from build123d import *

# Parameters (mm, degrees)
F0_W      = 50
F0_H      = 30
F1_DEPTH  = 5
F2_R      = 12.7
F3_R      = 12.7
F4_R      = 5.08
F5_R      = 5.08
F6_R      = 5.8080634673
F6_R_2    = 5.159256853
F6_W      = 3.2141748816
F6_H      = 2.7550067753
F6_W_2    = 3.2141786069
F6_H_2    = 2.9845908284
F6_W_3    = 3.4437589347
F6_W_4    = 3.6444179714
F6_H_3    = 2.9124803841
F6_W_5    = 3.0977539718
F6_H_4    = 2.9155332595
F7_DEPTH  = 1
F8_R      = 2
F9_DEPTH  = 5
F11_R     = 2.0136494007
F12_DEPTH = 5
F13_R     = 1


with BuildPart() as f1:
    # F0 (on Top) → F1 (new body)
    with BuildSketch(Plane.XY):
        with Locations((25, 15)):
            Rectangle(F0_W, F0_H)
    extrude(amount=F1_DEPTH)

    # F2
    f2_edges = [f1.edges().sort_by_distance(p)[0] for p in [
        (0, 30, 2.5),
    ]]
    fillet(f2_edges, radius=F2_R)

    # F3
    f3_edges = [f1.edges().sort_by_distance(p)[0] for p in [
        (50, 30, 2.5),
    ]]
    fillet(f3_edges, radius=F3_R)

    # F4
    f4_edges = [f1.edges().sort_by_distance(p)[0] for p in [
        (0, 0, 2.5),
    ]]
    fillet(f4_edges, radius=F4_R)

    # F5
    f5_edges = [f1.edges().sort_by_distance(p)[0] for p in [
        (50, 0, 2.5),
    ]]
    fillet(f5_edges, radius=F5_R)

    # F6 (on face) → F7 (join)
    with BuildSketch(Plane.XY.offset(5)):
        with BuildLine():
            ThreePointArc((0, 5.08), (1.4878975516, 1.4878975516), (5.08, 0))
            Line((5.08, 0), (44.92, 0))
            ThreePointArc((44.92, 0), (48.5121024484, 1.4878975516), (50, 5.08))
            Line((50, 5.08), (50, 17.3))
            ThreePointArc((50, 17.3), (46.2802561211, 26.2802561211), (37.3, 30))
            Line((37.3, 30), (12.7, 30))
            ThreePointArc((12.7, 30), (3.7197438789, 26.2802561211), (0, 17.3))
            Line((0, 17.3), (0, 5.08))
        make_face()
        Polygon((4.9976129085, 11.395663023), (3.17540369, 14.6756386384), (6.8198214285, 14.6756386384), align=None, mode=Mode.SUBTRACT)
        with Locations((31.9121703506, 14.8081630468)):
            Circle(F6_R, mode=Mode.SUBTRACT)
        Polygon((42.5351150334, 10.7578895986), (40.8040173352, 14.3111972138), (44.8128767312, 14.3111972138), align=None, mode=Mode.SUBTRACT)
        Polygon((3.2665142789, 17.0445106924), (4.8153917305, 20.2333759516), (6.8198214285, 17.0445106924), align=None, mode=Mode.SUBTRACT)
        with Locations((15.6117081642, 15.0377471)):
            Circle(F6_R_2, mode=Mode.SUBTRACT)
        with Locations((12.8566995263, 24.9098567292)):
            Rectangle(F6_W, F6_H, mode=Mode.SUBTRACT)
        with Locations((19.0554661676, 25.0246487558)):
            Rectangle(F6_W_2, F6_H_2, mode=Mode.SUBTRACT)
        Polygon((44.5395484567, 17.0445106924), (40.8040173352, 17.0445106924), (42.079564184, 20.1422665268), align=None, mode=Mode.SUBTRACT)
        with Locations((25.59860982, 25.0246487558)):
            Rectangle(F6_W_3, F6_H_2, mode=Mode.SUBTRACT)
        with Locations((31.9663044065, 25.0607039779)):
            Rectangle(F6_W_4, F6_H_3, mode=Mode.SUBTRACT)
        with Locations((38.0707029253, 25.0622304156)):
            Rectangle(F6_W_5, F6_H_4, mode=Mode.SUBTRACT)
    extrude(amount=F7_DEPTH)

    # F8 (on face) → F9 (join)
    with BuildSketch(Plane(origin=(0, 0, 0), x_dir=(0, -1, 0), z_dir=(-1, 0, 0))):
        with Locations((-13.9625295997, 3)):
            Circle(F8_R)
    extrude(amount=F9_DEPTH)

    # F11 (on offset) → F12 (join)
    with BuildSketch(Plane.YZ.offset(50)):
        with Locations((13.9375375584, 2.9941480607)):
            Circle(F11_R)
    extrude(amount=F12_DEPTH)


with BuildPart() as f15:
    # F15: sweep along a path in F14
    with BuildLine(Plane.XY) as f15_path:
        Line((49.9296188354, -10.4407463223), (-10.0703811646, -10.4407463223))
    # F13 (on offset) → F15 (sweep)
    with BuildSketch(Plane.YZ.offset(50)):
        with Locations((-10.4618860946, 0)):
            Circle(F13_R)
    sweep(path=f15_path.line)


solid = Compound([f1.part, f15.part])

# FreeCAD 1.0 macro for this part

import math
import FreeCAD as App
import Part
import Sketcher
Q = App.Units.Quantity


def edges_at(feature, points):
    """Names of the edges that pass closest to the given points."""
    edges = feature.Shape.Edges
    near = lambda p: min(range(len(edges)), key=lambda i: edges[i].distToShape(Part.Vertex(*p))[0])
    return sorted({f"Edge{near(p) + 1}" for p in points})

doc = App.newDocument("Part")
body = doc.addObject("PartDesign::Body", "Body")

# Sketch on XY plane
sketch1 = body.newObject("Sketcher::SketchObject", "Sketch")
sketch1.AttachmentSupport = (doc.getObject("XY_Plane"), [""])
sketch1.MapMode = "FlatFace"
sketch1.addGeometry([
    Part.LineSegment(App.Vector(0, 30, 0), App.Vector(0, 0, 0)),
    Part.LineSegment(App.Vector(0, 0, 0), App.Vector(50, 0, 0)),
    Part.LineSegment(App.Vector(50, 0, 0), App.Vector(50, 30, 0)),
    Part.LineSegment(App.Vector(50, 30, 0), App.Vector(0, 30, 0)),
], False)
sketch1.addConstraint([
    Sketcher.Constraint("Coincident", 0, 2, 1, 1),
    Sketcher.Constraint("Coincident", 1, 2, 2, 1),
    Sketcher.Constraint("Coincident", 2, 2, 3, 1),
    Sketcher.Constraint("Coincident", 3, 2, 0, 1),
    Sketcher.Constraint("Vertical", 0),
    Sketcher.Constraint("Horizontal", 1),
    Sketcher.Constraint("Vertical", 2),
    Sketcher.Constraint("Horizontal", 3),
    Sketcher.Constraint("Coincident", 0, 2, -1, 1),
    Sketcher.Constraint("DistanceX", 1, 1, 1, 2, Q("50 mm")),
    Sketcher.Constraint("DistanceY", 0, 2, 0, 1, Q("30 mm")),
])
pad1 = body.newObject("PartDesign::Pad", "Pad")
pad1.Profile = sketch1
pad1.Length = 5
doc.recompute()

fillet = body.newObject("PartDesign::Fillet", "Fillet")
fillet.Base = (pad1, edges_at(pad1, [(0, 30, 2.5)]))
fillet.Radius = 12.7
doc.recompute()

fillet2 = body.newObject("PartDesign::Fillet", "Fillet001")
fillet2.Base = (fillet, edges_at(fillet, [(50, 30, 2.5)]))
fillet2.Radius = 12.7
doc.recompute()

fillet3 = body.newObject("PartDesign::Fillet", "Fillet002")
fillet3.Base = (fillet2, edges_at(fillet2, [(0, 0, 2.5)]))
fillet3.Radius = 5.08
doc.recompute()

fillet4 = body.newObject("PartDesign::Fillet", "Fillet003")
fillet4.Base = (fillet3, edges_at(fillet3, [(50, 0, 2.5)]))
fillet4.Radius = 5.08

# Sketch on XY plane
sketch2 = body.newObject("Sketcher::SketchObject", "Sketch001")
sketch2.AttachmentSupport = (doc.getObject("XY_Plane"), [""])
sketch2.MapMode = "FlatFace"
sketch2.AttachmentOffset = App.Placement(App.Vector(0, 0, 5), App.Rotation())
sketch2.addGeometry([
    Part.ArcOfCircle(Part.Circle(App.Vector(5.1, 5.1, 0), App.Vector(0, 0, 1), 5.1), math.radians(180), math.radians(270)),  # 0
    Part.LineSegment(App.Vector(5.1, 0, 0), App.Vector(44.9, 0, 0)),  # 1
    Part.ArcOfCircle(Part.Circle(App.Vector(44.9, 5.1, 0), App.Vector(0, 0, 1), 5.1), math.radians(-90), math.radians(0)),  # 2
    Part.LineSegment(App.Vector(50, 5.1, 0), App.Vector(50, 17.3, 0)),  # 3
    Part.ArcOfCircle(Part.Circle(App.Vector(37.3, 17.3, 0), App.Vector(0, 0, 1), 12.7), math.radians(0), math.radians(90)),  # 4
    Part.LineSegment(App.Vector(37.3, 30, 0), App.Vector(12.7, 30, 0)),  # 5
    Part.ArcOfCircle(Part.Circle(App.Vector(12.7, 17.3, 0), App.Vector(0, 0, 1), 12.7), math.radians(90), math.radians(180)),  # 6
    Part.LineSegment(App.Vector(0, 17.3, 0), App.Vector(0, 5.1, 0)),  # 7
    Part.LineSegment(App.Vector(6.8, 14.7, 0), App.Vector(5, 11.4, 0)),  # 8
    Part.LineSegment(App.Vector(5, 11.4, 0), App.Vector(3.2, 14.7, 0)),  # 9
    Part.LineSegment(App.Vector(3.2, 14.7, 0), App.Vector(6.8, 14.7, 0)),  # 10
    Part.Circle(App.Vector(15.6, 15, 0), App.Vector(0, 0, 1), 5.2),  # 11
    Part.LineSegment(App.Vector(44.8, 14.3, 0), App.Vector(42.5, 10.8, 0)),  # 12
    Part.LineSegment(App.Vector(42.5, 10.8, 0), App.Vector(40.8, 14.3, 0)),  # 13
    Part.LineSegment(App.Vector(40.8, 14.3, 0), App.Vector(44.8, 14.3, 0)),  # 14
    Part.Circle(App.Vector(31.9, 14.8, 0), App.Vector(0, 0, 1), 5.8),  # 15
    Part.LineSegment(App.Vector(6.8, 17, 0), App.Vector(3.3, 17, 0)),  # 16
    Part.LineSegment(App.Vector(3.3, 17, 0), App.Vector(4.8, 20.2, 0)),  # 17
    Part.LineSegment(App.Vector(4.8, 20.2, 0), App.Vector(6.8, 17, 0)),  # 18
    Part.LineSegment(App.Vector(14.5, 23.5, 0), App.Vector(11.2, 23.5, 0)),  # 19
    Part.LineSegment(App.Vector(11.2, 23.5, 0), App.Vector(11.2, 26.3, 0)),  # 20
    Part.LineSegment(App.Vector(11.2, 26.3, 0), App.Vector(14.5, 26.3, 0)),  # 21
    Part.LineSegment(App.Vector(14.5, 26.3, 0), App.Vector(14.5, 23.5, 0)),  # 22
    Part.LineSegment(App.Vector(20.7, 23.5, 0), App.Vector(17.4, 23.5, 0)),  # 23
    Part.LineSegment(App.Vector(17.4, 23.5, 0), App.Vector(17.4, 26.5, 0)),  # 24
    Part.LineSegment(App.Vector(17.4, 26.5, 0), App.Vector(20.7, 26.5, 0)),  # 25
    Part.LineSegment(App.Vector(20.7, 26.5, 0), App.Vector(20.7, 23.5, 0)),  # 26
    Part.LineSegment(App.Vector(42.1, 20.1, 0), App.Vector(44.5, 17, 0)),  # 27
    Part.LineSegment(App.Vector(44.5, 17, 0), App.Vector(40.8, 17, 0)),  # 28
    Part.LineSegment(App.Vector(40.8, 17, 0), App.Vector(42.1, 20.1, 0)),  # 29
    Part.LineSegment(App.Vector(27.3, 23.5, 0), App.Vector(23.9, 23.5, 0)),  # 30
    Part.LineSegment(App.Vector(23.9, 23.5, 0), App.Vector(23.9, 26.5, 0)),  # 31
    Part.LineSegment(App.Vector(23.9, 26.5, 0), App.Vector(27.3, 26.5, 0)),  # 32
    Part.LineSegment(App.Vector(27.3, 26.5, 0), App.Vector(27.3, 23.5, 0)),  # 33
    Part.LineSegment(App.Vector(33.8, 23.6, 0), App.Vector(30.1, 23.6, 0)),  # 34
    Part.LineSegment(App.Vector(30.1, 23.6, 0), App.Vector(30.1, 26.5, 0)),  # 35
    Part.LineSegment(App.Vector(30.1, 26.5, 0), App.Vector(33.8, 26.5, 0)),  # 36
    Part.LineSegment(App.Vector(33.8, 26.5, 0), App.Vector(33.8, 23.6, 0)),  # 37
    Part.LineSegment(App.Vector(39.6, 23.6, 0), App.Vector(36.5, 23.6, 0)),  # 38
    Part.LineSegment(App.Vector(36.5, 23.6, 0), App.Vector(36.5, 26.5, 0)),  # 39
    Part.LineSegment(App.Vector(36.5, 26.5, 0), App.Vector(39.6, 26.5, 0)),  # 40
    Part.LineSegment(App.Vector(39.6, 26.5, 0), App.Vector(39.6, 23.6, 0)),  # 41
], False)
sketch2.addConstraint([
    Sketcher.Constraint("Tangent", 0, 2, 1, 1),
    Sketcher.Constraint("Tangent", 1, 2, 2, 1),
    Sketcher.Constraint("Tangent", 2, 2, 3, 1),
    Sketcher.Constraint("Tangent", 3, 2, 4, 1),
    Sketcher.Constraint("Tangent", 4, 2, 5, 1),
    Sketcher.Constraint("Tangent", 5, 2, 6, 1),
    Sketcher.Constraint("Tangent", 6, 2, 7, 1),
    Sketcher.Constraint("Tangent", 7, 2, 0, 1),
    Sketcher.Constraint("Coincident", 8, 2, 9, 1),
    Sketcher.Constraint("Coincident", 9, 2, 10, 1),
    Sketcher.Constraint("Coincident", 10, 2, 8, 1),
    Sketcher.Constraint("Coincident", 12, 2, 13, 1),
    Sketcher.Constraint("Coincident", 13, 2, 14, 1),
    Sketcher.Constraint("Coincident", 14, 2, 12, 1),
    Sketcher.Constraint("Coincident", 16, 2, 17, 1),
    Sketcher.Constraint("Coincident", 17, 2, 18, 1),
    Sketcher.Constraint("Coincident", 18, 2, 16, 1),
    Sketcher.Constraint("Coincident", 19, 2, 20, 1),
    Sketcher.Constraint("Coincident", 20, 2, 21, 1),
    Sketcher.Constraint("Coincident", 21, 2, 22, 1),
    Sketcher.Constraint("Coincident", 22, 2, 19, 1),
    Sketcher.Constraint("Coincident", 23, 2, 24, 1),
    Sketcher.Constraint("Coincident", 24, 2, 25, 1),
    Sketcher.Constraint("Coincident", 25, 2, 26, 1),
    Sketcher.Constraint("Coincident", 26, 2, 23, 1),
    Sketcher.Constraint("Coincident", 27, 2, 28, 1),
    Sketcher.Constraint("Coincident", 28, 2, 29, 1),
    Sketcher.Constraint("Coincident", 29, 2, 27, 1),
    Sketcher.Constraint("Coincident", 30, 2, 31, 1),
    Sketcher.Constraint("Coincident", 31, 2, 32, 1),
    Sketcher.Constraint("Coincident", 32, 2, 33, 1),
    Sketcher.Constraint("Coincident", 33, 2, 30, 1),
    Sketcher.Constraint("Coincident", 34, 2, 35, 1),
    Sketcher.Constraint("Coincident", 35, 2, 36, 1),
    Sketcher.Constraint("Coincident", 36, 2, 37, 1),
    Sketcher.Constraint("Coincident", 37, 2, 34, 1),
    Sketcher.Constraint("Coincident", 38, 2, 39, 1),
    Sketcher.Constraint("Coincident", 39, 2, 40, 1),
    Sketcher.Constraint("Coincident", 40, 2, 41, 1),
    Sketcher.Constraint("Coincident", 41, 2, 38, 1),
    Sketcher.Constraint("Horizontal", 1),
    Sketcher.Constraint("Vertical", 3),
    Sketcher.Constraint("Horizontal", 5),
    Sketcher.Constraint("Vertical", 7),
    Sketcher.Constraint("Horizontal", 10),
    Sketcher.Constraint("Horizontal", 14),
    Sketcher.Constraint("Horizontal", 16),
    Sketcher.Constraint("Horizontal", 19),
    Sketcher.Constraint("Vertical", 20),
    Sketcher.Constraint("Horizontal", 21),
    Sketcher.Constraint("Vertical", 22),
    Sketcher.Constraint("Horizontal", 23),
    Sketcher.Constraint("Vertical", 24),
    Sketcher.Constraint("Horizontal", 25),
    Sketcher.Constraint("Vertical", 26),
    Sketcher.Constraint("Horizontal", 28),
    Sketcher.Constraint("Horizontal", 30),
    Sketcher.Constraint("Vertical", 31),
    Sketcher.Constraint("Horizontal", 32),
    Sketcher.Constraint("Vertical", 33),
    Sketcher.Constraint("Horizontal", 34),
    Sketcher.Constraint("Vertical", 35),
    Sketcher.Constraint("Horizontal", 36),
    Sketcher.Constraint("Vertical", 37),
    Sketcher.Constraint("Horizontal", 38),
    Sketcher.Constraint("Vertical", 39),
    Sketcher.Constraint("Horizontal", 40),
    Sketcher.Constraint("Vertical", 41),
    Sketcher.Constraint("Equal", 0, 2),
    Sketcher.Constraint("Equal", 4, 6),
    Sketcher.Constraint("PointOnObject", 0, 2, -1),
    Sketcher.Constraint("PointOnObject", 6, 2, -2),
    Sketcher.Constraint("Horizontal", 22, 2, 23, 2),
    Sketcher.Constraint("Horizontal", 18, 2, 27, 2),
    Sketcher.Constraint("Horizontal", 26, 2, 30, 2),
    Sketcher.Constraint("Horizontal", 25, 2, 31, 2),
    Sketcher.Constraint("Horizontal", 32, 2, 35, 2),
    Sketcher.Constraint("Horizontal", 37, 2, 38, 2),
    Sketcher.Constraint("Vertical", 10, 2, 18, 2),
    Sketcher.Constraint("Vertical", 13, 2, 28, 2),
    Sketcher.Constraint("Equal", 10, 34),
    Sketcher.Constraint("Equal", 8, 9),
    Sketcher.Constraint("Radius", 4, Q("12.7 mm")),
    Sketcher.Constraint("Radius", 0, Q("5.08 mm")),
    Sketcher.Constraint("DistanceX", 5, 2, 5, 1, Q("24.6 mm")),
    Sketcher.Constraint("DistanceY", -1, 1, 4, 2, Q("30 mm")),
    Sketcher.Constraint("Diameter", 11, Q("10.318514 mm")),
    Sketcher.Constraint("Diameter", 15, Q("11.616127 mm")),
    Sketcher.Constraint("DistanceX", 14, 1, 14, 2, Q("4.008859 mm")),
    Sketcher.Constraint("DistanceX", 23, 2, 23, 1, Q("3.214179 mm")),
    Sketcher.Constraint("DistanceX", 28, 2, 28, 1, Q("3.735531 mm")),
    Sketcher.Constraint("DistanceX", 30, 2, 30, 1, Q("3.443759 mm")),
    Sketcher.Constraint("DistanceY", 24, 1, 24, 2, Q("2.984591 mm")),
    Sketcher.Constraint("DistanceY", 35, 1, 35, 2, Q("2.91248 mm")),
    Sketcher.Constraint("DistanceX", 16, 2, 8, 2, Q("1.731099 mm")),
    Sketcher.Constraint("DistanceY", 15, 3, 34, 2, Q("8.796301 mm")),
    Sketcher.Constraint("Distance", 17, Q("3.545121 mm")),
    Sketcher.Constraint("Distance", 18, Q("3.76651 mm")),
    Sketcher.Constraint("Distance", 29, Q("3.350091 mm")),
    Sketcher.Constraint("DistanceX", 10, 1, 10, 2, Q("3.644418 mm")),
    Sketcher.Constraint("DistanceX", 19, 2, 19, 1, Q("3.214175 mm")),
    Sketcher.Constraint("DistanceX", 38, 2, 38, 1, Q("3.097754 mm")),
    Sketcher.Constraint("DistanceY", 20, 1, 20, 2, Q("2.755007 mm")),
    Sketcher.Constraint("DistanceY", 39, 1, 39, 2, Q("2.915533 mm")),
    Sketcher.Constraint("DistanceX", -1, 1, 11, 3, Q("15.611708 mm")),
    Sketcher.Constraint("DistanceX", -1, 1, 15, 3, Q("31.91217 mm")),
    Sketcher.Constraint("DistanceY", -1, 1, 9, 2, Q("14.675639 mm")),
    Sketcher.Constraint("DistanceX", -1, 1, 10, 2, Q("6.819821 mm")),
    Sketcher.Constraint("DistanceY", -1, 1, 12, 2, Q("10.75789 mm")),
    Sketcher.Constraint("DistanceY", -1, 1, 16, 2, Q("17.044511 mm")),
    Sketcher.Constraint("DistanceY", -1, 1, 20, 2, Q("26.28736 mm")),
    Sketcher.Constraint("DistanceX", -1, 1, 27, 2, Q("44.539548 mm")),
    Sketcher.Constraint("DistanceX", -1, 1, 30, 2, Q("23.87673 mm")),
    Sketcher.Constraint("DistanceX", -1, 1, 40, 2, Q("39.61958 mm")),
    Sketcher.Constraint("DistanceY", 10, 2, 11, 3, Q("0.362108 mm")),
    Sketcher.Constraint("DistanceX", 12, 2, 14, 2, Q("2.277762 mm")),
    Sketcher.Constraint("DistanceX", 17, 2, 19, 2, Q("6.43422 mm")),
    Sketcher.Constraint("DistanceX", 22, 2, 23, 2, Q("2.98459 mm")),
    Sketcher.Constraint("DistanceY", 13, 2, 29, 2, Q("5.831069 mm")),
    Sketcher.Constraint("DistanceX", 34, 2, 38, 2, Q("6.377731 mm")),
    Sketcher.Constraint("Distance", 8, Q("3.752157 mm")),
    Sketcher.Constraint("Distance", 12, Q("4.220686 mm")),
])
pad2 = body.newObject("PartDesign::Pad", "Pad001")
pad2.Profile = sketch2
pad2.Length = 1

# Sketch on YZ plane
sketch3 = body.newObject("Sketcher::SketchObject", "Sketch002")
sketch3.AttachmentSupport = (doc.getObject("YZ_Plane"), [""])
sketch3.MapMode = "FlatFace"
sketch3.addGeometry(Part.Circle(App.Vector(14, 3, 0), App.Vector(0, 0, 1), 2), False)
sketch3.addConstraint([
    Sketcher.Constraint("Diameter", 0, Q("4 mm")),
    Sketcher.Constraint("DistanceY", -1, 1, 0, 3, Q("3 mm")),
    Sketcher.Constraint("DistanceX", -1, 1, 0, 3, Q("13.96253 mm")),
])
pad3 = body.newObject("PartDesign::Pad", "Pad002")
pad3.Profile = sketch3
pad3.Length = 5
pad3.Reversed = True

# Sketch on YZ plane
sketch4 = body.newObject("Sketcher::SketchObject", "Sketch003")
sketch4.AttachmentSupport = (doc.getObject("YZ_Plane"), [""])
sketch4.MapMode = "FlatFace"
sketch4.AttachmentOffset = App.Placement(App.Vector(0, 0, 50), App.Rotation())
sketch4.addGeometry(Part.Circle(App.Vector(13.9, 3, 0), App.Vector(0, 0, 1), 2), False)
sketch4.addConstraint([
    Sketcher.Constraint("Diameter", 0, Q("4.027299 mm")),
    Sketcher.Constraint("DistanceY", -1, 1, 0, 3, Q("2.994148 mm")),
    Sketcher.Constraint("DistanceX", -1, 1, 0, 3, Q("13.937538 mm")),
])
pad4 = body.newObject("PartDesign::Pad", "Pad003")
pad4.Profile = sketch4
pad4.Length = 5
body2 = doc.addObject("PartDesign::Body", "Body001")

# Sketch on YZ plane
sketch5 = body2.newObject("Sketcher::SketchObject", "Sketch004")
sketch5.AttachmentSupport = (doc.getObject("YZ_Plane001"), [""])
sketch5.MapMode = "FlatFace"
sketch5.AttachmentOffset = App.Placement(App.Vector(0, 0, 50), App.Rotation())
sketch5.addGeometry(Part.Circle(App.Vector(-10.5, 0, 0), App.Vector(0, 0, 1), 1), False)
sketch5.addConstraint([
    Sketcher.Constraint("PointOnObject", 0, 3, -1),
    Sketcher.Constraint("Diameter", 0, Q("2 mm")),
    Sketcher.Constraint("DistanceX", 0, 3, -1, 1, Q("10.461886 mm")),
])

# Sketch on XY plane
sketch6 = body2.newObject("Sketcher::SketchObject", "Sketch005")
sketch6.AttachmentSupport = (doc.getObject("XY_Plane001"), [""])
sketch6.MapMode = "FlatFace"
sketch6.addGeometry(Part.LineSegment(App.Vector(50, -10, 0), App.Vector(-10, -10, 0)), False)
sketch6.addConstraint([
    Sketcher.Constraint("Horizontal", 0),
    Sketcher.Constraint("DistanceX", 0, 2, 0, 1, Q("60 mm")),
    Sketcher.Constraint("DistanceX", -1, 1, 0, 1, Q("49.929619 mm")),
    Sketcher.Constraint("DistanceY", 0, 1, -1, 1, Q("10.440746 mm")),
])
doc.recompute()

additivepipe = body2.newObject("PartDesign::AdditivePipe", "AdditivePipe")
additivepipe.Profile = sketch5
additivepipe.Spine = (sketch6, ["Edge1"])

doc.recompute()
